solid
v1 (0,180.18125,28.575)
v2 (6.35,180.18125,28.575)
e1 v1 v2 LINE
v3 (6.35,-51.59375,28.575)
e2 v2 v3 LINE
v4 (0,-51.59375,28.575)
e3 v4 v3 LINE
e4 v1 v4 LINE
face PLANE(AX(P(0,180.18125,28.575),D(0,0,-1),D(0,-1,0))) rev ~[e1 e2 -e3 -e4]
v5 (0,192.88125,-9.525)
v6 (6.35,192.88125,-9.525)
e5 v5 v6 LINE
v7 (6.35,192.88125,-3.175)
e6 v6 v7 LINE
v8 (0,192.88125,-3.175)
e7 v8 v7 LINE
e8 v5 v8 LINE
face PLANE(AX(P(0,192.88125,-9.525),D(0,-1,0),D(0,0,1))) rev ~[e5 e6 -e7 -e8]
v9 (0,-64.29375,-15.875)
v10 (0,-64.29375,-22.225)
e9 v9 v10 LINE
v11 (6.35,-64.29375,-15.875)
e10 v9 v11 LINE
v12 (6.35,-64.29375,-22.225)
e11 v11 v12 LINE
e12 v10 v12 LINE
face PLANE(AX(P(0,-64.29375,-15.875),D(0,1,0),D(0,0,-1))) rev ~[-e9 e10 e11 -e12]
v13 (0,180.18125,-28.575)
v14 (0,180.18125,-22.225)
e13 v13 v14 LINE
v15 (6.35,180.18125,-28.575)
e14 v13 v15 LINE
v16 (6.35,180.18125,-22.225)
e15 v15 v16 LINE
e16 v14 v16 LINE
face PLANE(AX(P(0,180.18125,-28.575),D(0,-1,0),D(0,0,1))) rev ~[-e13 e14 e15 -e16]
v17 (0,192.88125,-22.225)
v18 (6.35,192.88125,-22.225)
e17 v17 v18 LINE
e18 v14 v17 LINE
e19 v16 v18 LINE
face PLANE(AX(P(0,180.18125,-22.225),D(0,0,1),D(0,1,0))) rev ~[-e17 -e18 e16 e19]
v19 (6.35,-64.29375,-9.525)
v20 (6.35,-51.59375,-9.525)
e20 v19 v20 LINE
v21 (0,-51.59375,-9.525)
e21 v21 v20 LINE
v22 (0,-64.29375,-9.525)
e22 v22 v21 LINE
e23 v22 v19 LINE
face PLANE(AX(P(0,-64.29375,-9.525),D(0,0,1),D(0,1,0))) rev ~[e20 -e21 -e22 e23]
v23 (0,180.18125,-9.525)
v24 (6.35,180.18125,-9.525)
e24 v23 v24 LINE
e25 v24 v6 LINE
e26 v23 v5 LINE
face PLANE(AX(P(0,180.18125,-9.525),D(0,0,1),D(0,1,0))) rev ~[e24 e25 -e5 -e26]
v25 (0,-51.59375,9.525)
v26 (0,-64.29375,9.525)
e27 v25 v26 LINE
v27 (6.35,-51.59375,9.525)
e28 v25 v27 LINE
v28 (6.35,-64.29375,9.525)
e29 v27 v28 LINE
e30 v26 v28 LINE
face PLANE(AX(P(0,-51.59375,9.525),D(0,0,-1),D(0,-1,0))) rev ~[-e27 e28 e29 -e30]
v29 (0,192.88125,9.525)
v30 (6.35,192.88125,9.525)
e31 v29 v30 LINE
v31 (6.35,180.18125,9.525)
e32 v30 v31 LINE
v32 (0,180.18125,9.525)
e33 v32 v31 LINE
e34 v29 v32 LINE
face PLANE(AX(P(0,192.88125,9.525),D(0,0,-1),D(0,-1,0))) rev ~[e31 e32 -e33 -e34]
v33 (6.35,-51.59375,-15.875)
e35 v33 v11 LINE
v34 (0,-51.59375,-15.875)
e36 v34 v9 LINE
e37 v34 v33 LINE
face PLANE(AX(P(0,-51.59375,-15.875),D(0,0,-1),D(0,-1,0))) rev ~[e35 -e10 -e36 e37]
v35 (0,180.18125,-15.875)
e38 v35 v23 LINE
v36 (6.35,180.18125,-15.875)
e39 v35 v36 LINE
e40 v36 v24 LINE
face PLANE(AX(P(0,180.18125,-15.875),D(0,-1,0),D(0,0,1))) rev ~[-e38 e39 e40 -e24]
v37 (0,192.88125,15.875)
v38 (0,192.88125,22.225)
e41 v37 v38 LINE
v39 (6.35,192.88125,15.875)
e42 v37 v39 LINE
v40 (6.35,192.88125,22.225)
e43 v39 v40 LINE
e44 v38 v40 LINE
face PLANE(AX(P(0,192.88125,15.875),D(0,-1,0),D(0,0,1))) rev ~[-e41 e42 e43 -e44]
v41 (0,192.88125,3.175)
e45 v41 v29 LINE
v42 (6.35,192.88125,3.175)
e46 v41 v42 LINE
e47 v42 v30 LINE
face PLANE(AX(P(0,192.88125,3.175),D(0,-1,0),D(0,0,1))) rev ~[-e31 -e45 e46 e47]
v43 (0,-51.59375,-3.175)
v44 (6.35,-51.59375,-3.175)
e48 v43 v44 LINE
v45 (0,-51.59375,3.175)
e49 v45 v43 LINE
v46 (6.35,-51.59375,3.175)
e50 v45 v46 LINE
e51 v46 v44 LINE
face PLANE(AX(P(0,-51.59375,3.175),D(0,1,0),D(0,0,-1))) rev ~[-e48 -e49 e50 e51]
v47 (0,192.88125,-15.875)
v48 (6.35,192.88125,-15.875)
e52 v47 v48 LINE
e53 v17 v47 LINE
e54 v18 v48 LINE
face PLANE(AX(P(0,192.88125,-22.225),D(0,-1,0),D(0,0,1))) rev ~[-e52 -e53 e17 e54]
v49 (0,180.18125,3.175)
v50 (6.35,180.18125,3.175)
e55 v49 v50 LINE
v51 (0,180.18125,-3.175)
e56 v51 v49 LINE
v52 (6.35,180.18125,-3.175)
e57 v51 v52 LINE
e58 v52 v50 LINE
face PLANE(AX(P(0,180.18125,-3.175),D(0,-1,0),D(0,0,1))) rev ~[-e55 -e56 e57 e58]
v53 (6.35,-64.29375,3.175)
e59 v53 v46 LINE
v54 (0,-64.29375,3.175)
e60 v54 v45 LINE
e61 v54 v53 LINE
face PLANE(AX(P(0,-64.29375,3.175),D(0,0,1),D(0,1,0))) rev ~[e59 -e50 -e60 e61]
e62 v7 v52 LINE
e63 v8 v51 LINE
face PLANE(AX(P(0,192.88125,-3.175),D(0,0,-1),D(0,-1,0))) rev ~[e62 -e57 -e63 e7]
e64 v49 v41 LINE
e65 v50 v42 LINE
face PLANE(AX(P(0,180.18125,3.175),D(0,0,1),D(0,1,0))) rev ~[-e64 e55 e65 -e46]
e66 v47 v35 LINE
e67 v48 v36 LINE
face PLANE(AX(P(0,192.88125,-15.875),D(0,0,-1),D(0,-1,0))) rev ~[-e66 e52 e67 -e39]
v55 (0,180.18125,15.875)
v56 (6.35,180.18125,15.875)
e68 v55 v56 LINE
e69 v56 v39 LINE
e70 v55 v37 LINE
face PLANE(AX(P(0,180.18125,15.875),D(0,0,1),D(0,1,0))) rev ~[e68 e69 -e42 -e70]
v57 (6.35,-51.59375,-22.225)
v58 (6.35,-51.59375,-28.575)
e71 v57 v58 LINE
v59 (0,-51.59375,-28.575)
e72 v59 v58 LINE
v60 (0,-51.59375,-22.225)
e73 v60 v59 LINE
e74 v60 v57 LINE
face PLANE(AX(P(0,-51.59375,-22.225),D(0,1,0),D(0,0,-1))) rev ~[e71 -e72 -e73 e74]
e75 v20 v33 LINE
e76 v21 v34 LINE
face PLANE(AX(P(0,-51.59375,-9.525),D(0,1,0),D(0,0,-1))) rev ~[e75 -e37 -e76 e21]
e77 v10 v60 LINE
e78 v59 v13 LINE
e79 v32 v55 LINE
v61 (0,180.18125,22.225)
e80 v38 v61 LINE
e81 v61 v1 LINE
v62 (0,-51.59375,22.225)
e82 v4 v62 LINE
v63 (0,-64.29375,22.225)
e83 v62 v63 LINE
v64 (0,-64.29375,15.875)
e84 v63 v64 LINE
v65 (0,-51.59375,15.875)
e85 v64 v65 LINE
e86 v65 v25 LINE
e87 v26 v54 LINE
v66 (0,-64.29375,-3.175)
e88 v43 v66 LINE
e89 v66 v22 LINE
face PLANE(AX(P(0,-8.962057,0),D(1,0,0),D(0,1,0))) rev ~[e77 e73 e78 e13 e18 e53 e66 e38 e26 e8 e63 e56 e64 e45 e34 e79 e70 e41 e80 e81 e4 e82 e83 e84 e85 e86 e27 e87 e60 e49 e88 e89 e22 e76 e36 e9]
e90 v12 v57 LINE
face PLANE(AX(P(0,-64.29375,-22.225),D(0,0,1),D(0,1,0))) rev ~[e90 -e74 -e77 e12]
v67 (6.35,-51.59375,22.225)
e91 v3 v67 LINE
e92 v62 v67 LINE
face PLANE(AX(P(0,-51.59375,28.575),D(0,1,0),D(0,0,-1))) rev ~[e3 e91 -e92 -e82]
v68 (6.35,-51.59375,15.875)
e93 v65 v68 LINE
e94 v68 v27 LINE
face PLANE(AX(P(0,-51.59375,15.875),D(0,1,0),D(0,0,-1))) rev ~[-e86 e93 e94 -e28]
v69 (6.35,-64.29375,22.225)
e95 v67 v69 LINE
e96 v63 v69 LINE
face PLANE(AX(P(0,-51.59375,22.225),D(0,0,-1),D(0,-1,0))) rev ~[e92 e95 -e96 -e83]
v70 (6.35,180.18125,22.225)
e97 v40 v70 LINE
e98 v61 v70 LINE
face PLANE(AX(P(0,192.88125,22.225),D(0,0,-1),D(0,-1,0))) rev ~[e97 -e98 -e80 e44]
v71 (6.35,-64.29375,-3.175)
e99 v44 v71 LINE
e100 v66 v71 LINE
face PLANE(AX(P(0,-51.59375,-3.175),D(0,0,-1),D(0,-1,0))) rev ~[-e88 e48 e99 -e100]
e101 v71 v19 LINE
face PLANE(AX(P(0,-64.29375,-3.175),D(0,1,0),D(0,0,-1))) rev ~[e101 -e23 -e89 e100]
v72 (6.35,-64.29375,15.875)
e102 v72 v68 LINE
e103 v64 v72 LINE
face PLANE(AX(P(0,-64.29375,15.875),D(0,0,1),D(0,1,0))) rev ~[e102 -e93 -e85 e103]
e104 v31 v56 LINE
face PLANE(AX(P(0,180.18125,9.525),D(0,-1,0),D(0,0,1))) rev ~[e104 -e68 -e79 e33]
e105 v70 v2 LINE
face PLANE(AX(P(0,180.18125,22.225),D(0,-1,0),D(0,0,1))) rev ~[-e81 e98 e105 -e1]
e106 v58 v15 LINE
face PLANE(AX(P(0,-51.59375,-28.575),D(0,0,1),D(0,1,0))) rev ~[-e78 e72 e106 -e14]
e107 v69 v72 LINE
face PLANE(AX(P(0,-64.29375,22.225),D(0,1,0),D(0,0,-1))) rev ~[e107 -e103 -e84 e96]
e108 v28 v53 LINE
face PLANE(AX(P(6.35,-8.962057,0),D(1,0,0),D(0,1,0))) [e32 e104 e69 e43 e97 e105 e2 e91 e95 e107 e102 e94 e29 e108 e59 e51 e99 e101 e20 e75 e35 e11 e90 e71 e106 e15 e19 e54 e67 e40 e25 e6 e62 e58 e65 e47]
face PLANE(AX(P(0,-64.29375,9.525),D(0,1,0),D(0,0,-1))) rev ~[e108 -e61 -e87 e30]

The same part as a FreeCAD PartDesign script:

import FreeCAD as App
import Part
import Sketcher
from FreeCAD import Vector
Q = App.Units.Quantity

doc = App.newDocument("Part")
body = doc.addObject("PartDesign::Body", "Body")

# Sketch on YZ plane
sketch1 = body.newObject("Sketcher::SketchObject", "Sketch")
sketch1.AttachmentSupport = (doc.getObject("YZ_Plane"), [""])
sketch1.MapMode = "FlatFace"
sketch1.addGeometry([
    Part.LineSegment(Vector(-51.59375, 28.575, 0), Vector(-51.59375, 22.225, 0)),  # 0
    Part.LineSegment(Vector(-51.59375, 22.225, 0), Vector(-64.29375, 22.225, 0)),  # 1
    Part.LineSegment(Vector(-64.29375, 22.225, 0), Vector(-64.29375, 15.875, 0)),  # 2
    Part.LineSegment(Vector(-64.29375, 15.875, 0), Vector(-51.59375, 15.875, 0)),  # 3
    Part.LineSegment(Vector(-51.59375, 15.875, 0), Vector(-51.59375, 9.525, 0)),  # 4
    Part.LineSegment(Vector(-51.59375, 9.525, 0), Vector(-64.29375, 9.525, 0)),  # 5
    Part.LineSegment(Vector(-64.29375, 9.525, 0), Vector(-64.29375, 3.175, 0)),  # 6
    Part.LineSegment(Vector(-64.29375, 3.175, 0), Vector(-51.59375, 3.175, 0)),  # 7
    Part.LineSegment(Vector(-51.59375, 3.175, 0), Vector(-51.59375, -3.175, 0)),  # 8
    Part.LineSegment(Vector(-51.59375, -3.175, 0), Vector(-64.29375, -3.175, 0)),  # 9
    Part.LineSegment(Vector(-64.29375, -3.175, 0), Vector(-64.29375, -9.525, 0)),  # 10
    Part.LineSegment(Vector(-64.29375, -9.525, 0), Vector(-51.59375, -9.525, 0)),  # 11
    Part.LineSegment(Vector(-51.59375, -9.525, 0), Vector(-51.59375, -15.875, 0)),  # 12
    Part.LineSegment(Vector(-51.59375, -15.875, 0), Vector(-64.29375, -15.875, 0)),  # 13
    Part.LineSegment(Vector(-64.29375, -15.875, 0), Vector(-64.29375, -22.225, 0)),  # 14
    Part.LineSegment(Vector(-64.29375, -22.225, 0), Vector(-51.59375, -22.225, 0)),  # 15
    Part.LineSegment(Vector(-51.59375, -22.225, 0), Vector(-51.59375, -28.575, 0)),  # 16
    Part.LineSegment(Vector(-51.59375, -28.575, 0), Vector(180.18125, -28.575, 0)),  # 17
    Part.LineSegment(Vector(180.18125, -28.575, 0), Vector(180.18125, -22.225, 0)),  # 18
    Part.LineSegment(Vector(180.18125, -22.225, 0), Vector(192.88125, -22.225, 0)),  # 19
    Part.LineSegment(Vector(192.88125, -22.225, 0), Vector(192.88125, -15.875, 0)),  # 20
    Part.LineSegment(Vector(192.88125, -15.875, 0), Vector(180.18125, -15.875, 0)),  # 21
    Part.LineSegment(Vector(180.18125, -15.875, 0), Vector(180.18125, -9.525, 0)),  # 22
    Part.LineSegment(Vector(180.18125, -9.525, 0), Vector(192.88125, -9.525, 0)),  # 23
    Part.LineSegment(Vector(192.88125, -9.525, 0), Vector(192.88125, -3.175, 0)),  # 24
    Part.LineSegment(Vector(192.88125, -3.175, 0), Vector(180.18125, -3.175, 0)),  # 25
    Part.LineSegment(Vector(180.18125, -3.175, 0), Vector(180.18125, 3.175, 0)),  # 26
    Part.LineSegment(Vector(180.18125, 3.175, 0), Vector(192.88125, 3.175, 0)),  # 27
    Part.LineSegment(Vector(192.88125, 3.175, 0), Vector(192.88125, 9.525, 0)),  # 28
    Part.LineSegment(Vector(192.88125, 9.525, 0), Vector(180.18125, 9.525, 0)),  # 29
    Part.LineSegment(Vector(180.18125, 9.525, 0), Vector(180.18125, 15.875, 0)),  # 30
    Part.LineSegment(Vector(180.18125, 15.875, 0), Vector(192.88125, 15.875, 0)),  # 31
    Part.LineSegment(Vector(192.88125, 15.875, 0), Vector(192.88125, 22.225, 0)),  # 32
    Part.LineSegment(Vector(192.88125, 22.225, 0), Vector(180.18125, 22.225, 0)),  # 33
    Part.LineSegment(Vector(180.18125, 22.225, 0), Vector(180.18125, 28.575, 0)),  # 34
    Part.LineSegment(Vector(180.18125, 28.575, 0), Vector(-51.59375, 28.575, 0)),  # 35
], False)
sketch1.addConstraint([
    Sketcher.Constraint("Coincident", 0, 2, 1, 1),
    Sketcher.Constraint("Coincident", 1, 2, 2, 1),
    Sketcher.Constraint("Coincident", 2, 2, 3, 1),
    Sketcher.Constraint("Coincident", 3, 2, 4, 1),
    Sketcher.Constraint("Coincident", 4, 2, 5, 1),
    Sketcher.Constraint("Coincident", 5, 2, 6, 1),
    Sketcher.Constraint("Coincident", 6, 2, 7, 1),
    Sketcher.Constraint("Coincident", 7, 2, 8, 1),
    Sketcher.Constraint("Coincident", 8, 2, 9, 1),
    Sketcher.Constraint("Coincident", 9, 2, 10, 1),
    Sketcher.Constraint("Coincident", 10, 2, 11, 1),
    Sketcher.Constraint("Coincident", 11, 2, 12, 1),
    Sketcher.Constraint("Coincident", 12, 2, 13, 1),
    Sketcher.Constraint("Coincident", 13, 2, 14, 1),
    Sketcher.Constraint("Coincident", 14, 2, 15, 1),
    Sketcher.Constraint("Coincident", 15, 2, 16, 1),
    Sketcher.Constraint("Coincident", 16, 2, 17, 1),
    Sketcher.Constraint("Coincident", 17, 2, 18, 1),
    Sketcher.Constraint("Coincident", 18, 2, 19, 1),
    Sketcher.Constraint("Coincident", 19, 2, 20, 1),
    Sketcher.Constraint("Coincident", 20, 2, 21, 1),
    Sketcher.Constraint("Coincident", 21, 2, 22, 1),
    Sketcher.Constraint("Coincident", 22, 2, 23, 1),
    Sketcher.Constraint("Coincident", 23, 2, 24, 1),
    Sketcher.Constraint("Coincident", 24, 2, 25, 1),
    Sketcher.Constraint("Coincident", 25, 2, 26, 1),
    Sketcher.Constraint("Coincident", 26, 2, 27, 1),
    Sketcher.Constraint("Coincident", 27, 2, 28, 1),
    Sketcher.Constraint("Coincident", 28, 2, 29, 1),
    Sketcher.Constraint("Coincident", 29, 2, 30, 1),
    Sketcher.Constraint("Coincident", 30, 2, 31, 1),
    Sketcher.Constraint("Coincident", 31, 2, 32, 1),
    Sketcher.Constraint("Coincident", 32, 2, 33, 1),
    Sketcher.Constraint("Coincident", 33, 2, 34, 1),
    Sketcher.Constraint("Coincident", 34, 2, 35, 1),
    Sketcher.Constraint("Coincident", 35, 2, 0, 1),
    Sketcher.Constraint("Vertical", 0),
    Sketcher.Constraint("Horizontal", 1),
    Sketcher.Constraint("Vertical", 2),
    Sketcher.Constraint("Horizontal", 3),
    Sketcher.Constraint("Vertical", 4),
    Sketcher.Constraint("Horizontal", 5),
    Sketcher.Constraint("Vertical", 6),
    Sketcher.Constraint("Horizontal", 7),
    Sketcher.Constraint("Vertical", 8),
    Sketcher.Constraint("Horizontal", 9),
    Sketcher.Constraint("Vertical", 10),
    Sketcher.Constraint("Horizontal", 11),
    Sketcher.Constraint("Vertical", 12),
    Sketcher.Constraint("Horizontal", 13),
    Sketcher.Constraint("Vertical", 14),
    Sketcher.Constraint("Horizontal", 15),
    Sketcher.Constraint("Vertical", 16),
    Sketcher.Constraint("Horizontal", 17),
    Sketcher.Constraint("Vertical", 18),
    Sketcher.Constraint("Horizontal", 19),
    Sketcher.Constraint("Vertical", 20),
    Sketcher.Constraint("Horizontal", 21),
    Sketcher.Constraint("Vertical", 22),
    Sketcher.Constraint("Horizontal", 23),
    Sketcher.Constraint("Vertical", 24),
    Sketcher.Constraint("Horizontal", 25),
    Sketcher.Constraint("Vertical", 26),
    Sketcher.Constraint("Horizontal", 27),
    Sketcher.Constraint("Vertical", 28),
    Sketcher.Constraint("Horizontal", 29),
    Sketcher.Constraint("Vertical", 30),
    Sketcher.Constraint("Horizontal", 31),
    Sketcher.Constraint("Vertical", 32),
    Sketcher.Constraint("Horizontal", 33),
    Sketcher.Constraint("Vertical", 34),
    Sketcher.Constraint("Horizontal", 35),
    Sketcher.Constraint("Symmetric", 6, 2, 9, 2, -1),
    Sketcher.Constraint("Symmetric", 4, 2, 11, 2, -1),
    Sketcher.Constraint("Symmetric", 2, 2, 13, 2, -1),
    Sketcher.Constraint("Symmetric", 0, 2, 15, 2, -1),
    Sketcher.Constraint("Symmetric", 24, 2, 27, 2, -1),
    Sketcher.Constraint("Symmetric", 22, 2, 29, 2, -1),
    Sketcher.Constraint("Symmetric", 20, 2, 31, 2, -1),
    Sketcher.Constraint("Symmetric", 18, 2, 33, 2, -1),
    Sketcher.Constraint("Horizontal", 15, 2, 18, 2),
    Sketcher.Constraint("Horizontal", 13, 2, 20, 2),
    Sketcher.Constraint("Horizontal", 11, 2, 22, 2),
    Sketcher.Constraint("Horizontal", 9, 2, 24, 2),
    Sketcher.Constraint("Vertical", 0, 2, 3, 2),
    Sketcher.Constraint("Vertical", 2, 2, 5, 2),
    Sketcher.Constraint("Vertical", 4, 2, 7, 2),
    Sketcher.Constraint("Vertical", 18, 2, 21, 2),
    Sketcher.Constraint("Vertical", 20, 2, 23, 2),
    Sketcher.Constraint("Vertical", 22, 2, 25, 2),
    Sketcher.Constraint("Equal", 15, 19),
    Sketcher.Constraint("Equal", 0, 2),
    Sketcher.Constraint("Equal", 2, 4),
    Sketcher.Constraint("Equal", 4, 6),
    Sketcher.Constraint("Equal", 6, 8),
    Sketcher.Constraint("Equal", 14, 16),
    Sketcher.Constraint("DistanceX", 1, 2, 1, 1, Q("0.5 in")),
    Sketcher.Constraint("DistanceY", 17, 2, 8, 2, Q("1 in")),
    Sketcher.Constraint("DistanceX", 17, 1, 17, 2, Q("9.125 in")),
    Sketcher.Constraint("DistanceX", 0, 2, -1, 1, Q("2.03125 in")),
])
pad1 = body.newObject("PartDesign::Pad", "Pad")
pad1.Profile = sketch1
pad1.Length = Q("0.25 in")

doc.recompute()
